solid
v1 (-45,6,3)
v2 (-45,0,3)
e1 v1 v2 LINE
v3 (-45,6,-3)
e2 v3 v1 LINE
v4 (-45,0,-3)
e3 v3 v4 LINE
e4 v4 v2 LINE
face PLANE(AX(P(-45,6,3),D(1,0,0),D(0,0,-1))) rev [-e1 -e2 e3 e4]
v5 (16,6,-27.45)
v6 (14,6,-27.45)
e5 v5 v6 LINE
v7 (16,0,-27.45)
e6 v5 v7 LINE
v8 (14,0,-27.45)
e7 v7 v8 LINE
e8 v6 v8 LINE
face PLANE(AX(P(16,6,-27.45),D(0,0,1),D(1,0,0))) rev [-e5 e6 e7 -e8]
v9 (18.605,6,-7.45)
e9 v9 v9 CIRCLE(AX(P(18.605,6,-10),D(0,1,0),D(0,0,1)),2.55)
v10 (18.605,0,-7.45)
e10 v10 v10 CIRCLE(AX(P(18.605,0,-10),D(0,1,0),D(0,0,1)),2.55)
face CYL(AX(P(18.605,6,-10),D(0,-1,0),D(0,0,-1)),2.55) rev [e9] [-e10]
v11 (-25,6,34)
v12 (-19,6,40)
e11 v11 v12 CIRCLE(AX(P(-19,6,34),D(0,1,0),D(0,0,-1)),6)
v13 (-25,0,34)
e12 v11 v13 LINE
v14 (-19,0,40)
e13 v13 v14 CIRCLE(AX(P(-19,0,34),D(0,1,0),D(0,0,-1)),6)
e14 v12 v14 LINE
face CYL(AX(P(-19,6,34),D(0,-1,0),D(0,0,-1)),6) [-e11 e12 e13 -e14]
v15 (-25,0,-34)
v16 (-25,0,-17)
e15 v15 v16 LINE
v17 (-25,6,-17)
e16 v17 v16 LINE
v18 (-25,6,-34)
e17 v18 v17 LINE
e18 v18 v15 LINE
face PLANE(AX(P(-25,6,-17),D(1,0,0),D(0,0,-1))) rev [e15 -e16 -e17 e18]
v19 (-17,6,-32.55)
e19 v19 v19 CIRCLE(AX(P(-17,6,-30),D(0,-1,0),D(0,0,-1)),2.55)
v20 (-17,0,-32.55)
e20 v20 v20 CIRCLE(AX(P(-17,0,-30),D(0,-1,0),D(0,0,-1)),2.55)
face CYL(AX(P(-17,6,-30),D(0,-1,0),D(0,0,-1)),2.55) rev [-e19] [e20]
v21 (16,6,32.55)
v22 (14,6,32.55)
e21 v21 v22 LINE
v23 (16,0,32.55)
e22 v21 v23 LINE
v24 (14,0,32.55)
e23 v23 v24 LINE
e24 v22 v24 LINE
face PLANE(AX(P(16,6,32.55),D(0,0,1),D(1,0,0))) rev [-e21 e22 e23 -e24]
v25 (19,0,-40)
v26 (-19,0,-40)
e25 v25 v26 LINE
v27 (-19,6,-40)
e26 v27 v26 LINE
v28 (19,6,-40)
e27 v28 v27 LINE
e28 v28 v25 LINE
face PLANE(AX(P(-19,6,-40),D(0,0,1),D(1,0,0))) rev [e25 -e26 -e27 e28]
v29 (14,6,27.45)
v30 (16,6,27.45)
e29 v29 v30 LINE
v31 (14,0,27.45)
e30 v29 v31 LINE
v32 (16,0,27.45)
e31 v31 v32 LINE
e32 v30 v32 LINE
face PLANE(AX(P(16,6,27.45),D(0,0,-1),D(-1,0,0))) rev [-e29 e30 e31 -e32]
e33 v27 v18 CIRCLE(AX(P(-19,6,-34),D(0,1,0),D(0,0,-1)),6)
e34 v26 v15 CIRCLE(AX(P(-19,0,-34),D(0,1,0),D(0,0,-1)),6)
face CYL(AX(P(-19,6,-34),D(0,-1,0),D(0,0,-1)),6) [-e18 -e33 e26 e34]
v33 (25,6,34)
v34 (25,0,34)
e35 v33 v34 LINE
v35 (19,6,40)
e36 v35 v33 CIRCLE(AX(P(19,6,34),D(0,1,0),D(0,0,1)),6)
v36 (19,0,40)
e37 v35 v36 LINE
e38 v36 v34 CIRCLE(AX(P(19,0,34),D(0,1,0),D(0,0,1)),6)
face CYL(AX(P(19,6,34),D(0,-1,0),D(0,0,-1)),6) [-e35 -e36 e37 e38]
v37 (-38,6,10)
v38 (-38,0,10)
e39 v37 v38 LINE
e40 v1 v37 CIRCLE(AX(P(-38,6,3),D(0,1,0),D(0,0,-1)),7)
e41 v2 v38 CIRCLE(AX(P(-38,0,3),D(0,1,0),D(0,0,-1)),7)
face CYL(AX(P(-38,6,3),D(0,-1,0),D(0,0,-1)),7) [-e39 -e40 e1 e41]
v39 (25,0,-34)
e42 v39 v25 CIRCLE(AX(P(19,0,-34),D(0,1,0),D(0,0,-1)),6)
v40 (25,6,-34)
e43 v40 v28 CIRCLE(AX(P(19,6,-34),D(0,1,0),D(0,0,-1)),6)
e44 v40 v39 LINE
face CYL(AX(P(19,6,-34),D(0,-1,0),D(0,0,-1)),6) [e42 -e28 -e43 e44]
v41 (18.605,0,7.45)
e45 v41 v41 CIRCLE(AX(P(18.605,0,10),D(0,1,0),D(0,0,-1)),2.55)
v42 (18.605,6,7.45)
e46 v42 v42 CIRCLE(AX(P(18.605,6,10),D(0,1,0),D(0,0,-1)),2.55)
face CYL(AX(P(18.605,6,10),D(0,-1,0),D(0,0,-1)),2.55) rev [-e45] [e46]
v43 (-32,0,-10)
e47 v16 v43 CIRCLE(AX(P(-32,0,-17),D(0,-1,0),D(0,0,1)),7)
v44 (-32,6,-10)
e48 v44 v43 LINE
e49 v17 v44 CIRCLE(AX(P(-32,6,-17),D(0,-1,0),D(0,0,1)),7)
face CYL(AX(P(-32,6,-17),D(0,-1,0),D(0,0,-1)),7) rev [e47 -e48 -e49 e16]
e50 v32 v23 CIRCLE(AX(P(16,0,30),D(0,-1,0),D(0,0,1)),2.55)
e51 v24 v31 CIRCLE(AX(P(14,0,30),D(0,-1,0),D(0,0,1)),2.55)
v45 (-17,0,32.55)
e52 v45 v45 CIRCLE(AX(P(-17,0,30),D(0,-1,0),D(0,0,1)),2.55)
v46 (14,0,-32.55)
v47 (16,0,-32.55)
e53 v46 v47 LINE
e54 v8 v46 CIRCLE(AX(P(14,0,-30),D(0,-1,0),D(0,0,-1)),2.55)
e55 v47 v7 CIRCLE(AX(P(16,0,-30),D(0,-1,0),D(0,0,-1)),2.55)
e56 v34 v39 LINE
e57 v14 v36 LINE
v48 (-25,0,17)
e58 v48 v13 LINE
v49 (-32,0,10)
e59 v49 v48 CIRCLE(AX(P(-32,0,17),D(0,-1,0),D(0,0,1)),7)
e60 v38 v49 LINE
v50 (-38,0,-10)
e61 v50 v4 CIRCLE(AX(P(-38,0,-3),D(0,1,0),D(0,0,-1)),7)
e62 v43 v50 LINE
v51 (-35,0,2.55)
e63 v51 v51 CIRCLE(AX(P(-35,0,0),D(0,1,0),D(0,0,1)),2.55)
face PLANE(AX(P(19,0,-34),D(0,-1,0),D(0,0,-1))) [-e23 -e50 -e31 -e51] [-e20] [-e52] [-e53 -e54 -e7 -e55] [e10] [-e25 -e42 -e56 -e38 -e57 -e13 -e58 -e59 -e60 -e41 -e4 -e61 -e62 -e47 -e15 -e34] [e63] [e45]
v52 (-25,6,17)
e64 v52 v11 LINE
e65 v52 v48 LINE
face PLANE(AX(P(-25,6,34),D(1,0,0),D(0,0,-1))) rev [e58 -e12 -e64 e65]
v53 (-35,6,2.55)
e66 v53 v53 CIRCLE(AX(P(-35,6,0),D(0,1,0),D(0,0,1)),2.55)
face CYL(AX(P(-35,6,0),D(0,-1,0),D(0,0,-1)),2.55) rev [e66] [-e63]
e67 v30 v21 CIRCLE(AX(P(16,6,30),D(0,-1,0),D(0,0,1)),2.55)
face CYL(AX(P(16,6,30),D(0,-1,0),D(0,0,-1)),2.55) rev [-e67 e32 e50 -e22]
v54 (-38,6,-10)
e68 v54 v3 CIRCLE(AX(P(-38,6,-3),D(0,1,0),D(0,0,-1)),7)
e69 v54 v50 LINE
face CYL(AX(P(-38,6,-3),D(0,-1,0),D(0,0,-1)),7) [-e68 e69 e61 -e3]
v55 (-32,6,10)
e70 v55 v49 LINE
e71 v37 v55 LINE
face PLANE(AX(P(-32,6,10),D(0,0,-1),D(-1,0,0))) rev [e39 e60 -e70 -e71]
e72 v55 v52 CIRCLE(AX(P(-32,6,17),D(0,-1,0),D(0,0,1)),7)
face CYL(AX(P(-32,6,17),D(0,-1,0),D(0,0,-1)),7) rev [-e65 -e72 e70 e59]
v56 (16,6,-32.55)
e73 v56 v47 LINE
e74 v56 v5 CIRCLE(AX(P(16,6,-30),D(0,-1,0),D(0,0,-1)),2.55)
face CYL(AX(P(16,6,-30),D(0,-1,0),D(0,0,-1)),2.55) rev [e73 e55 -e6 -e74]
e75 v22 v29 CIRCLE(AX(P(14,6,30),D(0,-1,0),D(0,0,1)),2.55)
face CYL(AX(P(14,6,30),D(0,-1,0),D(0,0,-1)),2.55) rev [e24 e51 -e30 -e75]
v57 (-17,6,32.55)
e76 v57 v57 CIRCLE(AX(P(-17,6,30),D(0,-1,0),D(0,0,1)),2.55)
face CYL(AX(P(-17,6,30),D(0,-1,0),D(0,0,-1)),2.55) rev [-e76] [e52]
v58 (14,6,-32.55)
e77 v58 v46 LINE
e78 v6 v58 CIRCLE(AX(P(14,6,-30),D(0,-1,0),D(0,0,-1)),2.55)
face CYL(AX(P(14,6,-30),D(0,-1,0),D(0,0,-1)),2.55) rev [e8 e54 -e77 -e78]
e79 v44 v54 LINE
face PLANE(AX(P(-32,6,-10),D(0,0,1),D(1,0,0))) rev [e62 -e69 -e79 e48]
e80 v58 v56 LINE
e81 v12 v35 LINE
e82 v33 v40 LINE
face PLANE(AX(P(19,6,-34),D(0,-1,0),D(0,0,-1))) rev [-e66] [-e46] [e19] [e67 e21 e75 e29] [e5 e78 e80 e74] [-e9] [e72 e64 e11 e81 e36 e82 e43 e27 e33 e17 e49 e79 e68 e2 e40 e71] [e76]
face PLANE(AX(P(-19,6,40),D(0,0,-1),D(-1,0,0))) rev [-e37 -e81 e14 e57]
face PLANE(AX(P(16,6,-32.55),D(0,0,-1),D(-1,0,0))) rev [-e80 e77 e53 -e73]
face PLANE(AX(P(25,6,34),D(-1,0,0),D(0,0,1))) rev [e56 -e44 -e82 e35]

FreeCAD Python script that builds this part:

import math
import FreeCAD as App
import Part
import Sketcher
Q = App.Units.Quantity

doc = App.newDocument("Part")
body = doc.addObject("PartDesign::Body", "Body")

# Sketch on XZ plane
sketch1 = body.newObject("Sketcher::SketchObject", "Sketch")
sketch1.AttachmentSupport = (doc.getObject("XZ_Plane"), [""])
sketch1.MapMode = "FlatFace"
sketch1.addGeometry(Part.LineSegment(App.Vector(-38, 10, 0), App.Vector(-32, 10, 0)), False)
sketch1.addGeometry(Part.ArcOfCircle(Part.Circle(App.Vector(-32, 17, 0), App.Vector(0, 0, 1), 7), math.radians(-90), math.radians(0)), False)
sketch1.addGeometry(Part.LineSegment(App.Vector(-25, 17, 0), App.Vector(-25, 34, 0)), False)
sketch1.addGeometry(Part.ArcOfCircle(Part.Circle(App.Vector(-19, 34, 0), App.Vector(0, 0, 1), 6), math.radians(90), math.radians(180)), False)
sketch1.addGeometry(Part.LineSegment(App.Vector(-19, 40, 0), App.Vector(19, 40, 0)), False)
sketch1.addGeometry(Part.ArcOfCircle(Part.Circle(App.Vector(19, 34, 0), App.Vector(0, 0, 1), 6), math.radians(0), math.radians(90)), False)
sketch1.addGeometry(Part.LineSegment(App.Vector(25, 34, 0), App.Vector(25, -34, 0)), False)
sketch1.addGeometry(Part.ArcOfCircle(Part.Circle(App.Vector(19, -34, 0), App.Vector(0, 0, 1), 6), math.radians(-90), math.radians(0)), False)
sketch1.addGeometry(Part.LineSegment(App.Vector(19, -40, 0), App.Vector(-19, -40, 0)), False)
sketch1.addGeometry(Part.ArcOfCircle(Part.Circle(App.Vector(-19, -34, 0), App.Vector(0, 0, 1), 6), math.radians(180), math.radians(270)), False)
sketch1.addGeometry(Part.LineSegment(App.Vector(-25, -34, 0), App.Vector(-25, -17, 0)), False)
sketch1.addGeometry(Part.ArcOfCircle(Part.Circle(App.Vector(-32, -17, 0), App.Vector(0, 0, 1), 7), math.radians(0), math.radians(90)), False)
sketch1.addGeometry(Part.LineSegment(App.Vector(-32, -10, 0), App.Vector(-38, -10, 0)), False)
sketch1.addGeometry(Part.ArcOfCircle(Part.Circle(App.Vector(-38, -3, 0), App.Vector(0, 0, 1), 7), math.radians(-180), math.radians(-90)), False)
sketch1.addGeometry(Part.LineSegment(App.Vector(-45, -3, 0), App.Vector(-45, 3, 0)), False)
sketch1.addGeometry(Part.ArcOfCircle(Part.Circle(App.Vector(-38, 3, 0), App.Vector(0, 0, 1), 7), math.radians(90), math.radians(180)), False)
sketch1.addGeometry(Part.Circle(App.Vector(18.605, 10, 0), App.Vector(0, 0, 1), 2.55), False)
sketch1.addGeometry(Part.Circle(App.Vector(18.605, -10, 0), App.Vector(0, 0, 1), 2.55), False)
sketch1.addGeometry(Part.Circle(App.Vector(-35, 0, 0), App.Vector(0, 0, 1), 2.55), False)
sketch1.addConstraint(Sketcher.Constraint("Tangent", 0, 2, 1, 1))
sketch1.addConstraint(Sketcher.Constraint("Tangent", 1, 2, 2, 1))
sketch1.addConstraint(Sketcher.Constraint("Tangent", 2, 2, 3, 2))
sketch1.addConstraint(Sketcher.Constraint("Tangent", 3, 1, 4, 1))
sketch1.addConstraint(Sketcher.Constraint("Tangent", 4, 2, 5, 2))
sketch1.addConstraint(Sketcher.Constraint("Tangent", 5, 1, 6, 1))
sketch1.addConstraint(Sketcher.Constraint("Tangent", 6, 2, 7, 2))
sketch1.addConstraint(Sketcher.Constraint("Tangent", 7, 1, 8, 1))
sketch1.addConstraint(Sketcher.Constraint("Tangent", 8, 2, 9, 2))
sketch1.addConstraint(Sketcher.Constraint("Tangent", 9, 1, 10, 1))
sketch1.addConstraint(Sketcher.Constraint("Tangent", 10, 2, 11, 1))
sketch1.addConstraint(Sketcher.Constraint("Tangent", 11, 2, 12, 1))
sketch1.addConstraint(Sketcher.Constraint("Tangent", 12, 2, 13, 2))
sketch1.addConstraint(Sketcher.Constraint("Tangent", 13, 1, 14, 1))
sketch1.addConstraint(Sketcher.Constraint("Tangent", 14, 2, 15, 2))
sketch1.addConstraint(Sketcher.Constraint("Tangent", 15, 1, 0, 1))
sketch1.addConstraint(Sketcher.Constraint("Horizontal", 0))
sketch1.addConstraint(Sketcher.Constraint("Vertical", 2))
sketch1.addConstraint(Sketcher.Constraint("Horizontal", 4))
sketch1.addConstraint(Sketcher.Constraint("Vertical", 6))
sketch1.addConstraint(Sketcher.Constraint("Horizontal", 8))
sketch1.addConstraint(Sketcher.Constraint("Vertical", 10))
sketch1.addConstraint(Sketcher.Constraint("Horizontal", 12))
sketch1.addConstraint(Sketcher.Constraint("Vertical", 14))
sketch1.addConstraint(Sketcher.Constraint("Equal", 3, 5))
sketch1.addConstraint(Sketcher.Constraint("Equal", 5, 7))
sketch1.addConstraint(Sketcher.Constraint("Equal", 7, 9))
sketch1.addConstraint(Sketcher.Constraint("Equal", 1, 11))
sketch1.addConstraint(Sketcher.Constraint("Equal", 11, 13))
sketch1.addConstraint(Sketcher.Constraint("Equal", 13, 15))
sketch1.addConstraint(Sketcher.Constraint("Equal", 16, 17))
sketch1.addConstraint(Sketcher.Constraint("Equal", 17, 18))
sketch1.addConstraint(Sketcher.Constraint("Symmetric", 3, 3, 7, 3, -1, 1))
sketch1.addConstraint(Sketcher.Constraint("Symmetric", 1, 3, 11, 3, -1))
sketch1.addConstraint(Sketcher.Constraint("Symmetric", 16, 3, 17, 3, -1))
sketch1.addConstraint(Sketcher.Constraint("PointOnObject", 18, 3, -1))
sketch1.addConstraint(Sketcher.Constraint("Horizontal", 16, 3, 0, 2))
sketch1.addConstraint(Sketcher.Constraint("Equal", 12, 14))
sketch1.addConstraint(Sketcher.Constraint("Radius", 1, Q("7 mm")))
sketch1.addConstraint(Sketcher.Constraint("Radius", 3, Q("6 mm")))
sketch1.addConstraint(Sketcher.Constraint("Diameter", 16, Q("5.1 mm")))
sketch1.addConstraint(Sketcher.Constraint("DistanceX", 0, 1, 0, 2, Q("6 mm")))
sketch1.addConstraint(Sketcher.Constraint("DistanceX", 4, 1, 4, 2, Q("38 mm")))
sketch1.addConstraint(Sketcher.Constraint("DistanceY", 2, 1, 2, 2, Q("17 mm")))
sketch1.addConstraint(Sketcher.Constraint("DistanceX", 18, 3, -1, 1, Q("35 mm")))
sketch1.addConstraint(Sketcher.Constraint("DistanceX", -1, 1, 16, 3, Q("18.605 mm")))
pad1 = body.newObject("PartDesign::Pad", "Pad")
pad1.Profile = sketch1
pad1.Length = 6
pad1.Reversed = True

# Sketch on XZ plane
sketch2 = body.newObject("Sketcher::SketchObject", "Sketch001")
sketch2.AttachmentSupport = (doc.getObject("XZ_Plane"), [""])
sketch2.MapMode = "FlatFace"
sketch2.addGeometry(Part.Circle(App.Vector(-17, -30, 0), App.Vector(0, 0, 1), 2.55), False)
sketch2.addGeometry(Part.Circle(App.Vector(-17, 30, 0), App.Vector(0, 0, 1), 2.55), False)
sketch2.addGeometry(Part.LineSegment(App.Vector(14, -32.55, 0), App.Vector(16, -32.55, 0)), False)
sketch2.addGeometry(Part.ArcOfCircle(Part.Circle(App.Vector(16, -30, 0), App.Vector(0, 0, 1), 2.55), math.radians(-90), math.radians(90)), False)
sketch2.addGeometry(Part.LineSegment(App.Vector(16, -27.45, 0), App.Vector(14, -27.45, 0)), False)
sketch2.addGeometry(Part.ArcOfCircle(Part.Circle(App.Vector(14, -30, 0), App.Vector(0, 0, 1), 2.55), math.radians(90), math.radians(270)), False)
sketch2.addGeometry(Part.LineSegment(App.Vector(16, 32.55, 0), App.Vector(14, 32.55, 0)), False)
sketch2.addGeometry(Part.ArcOfCircle(Part.Circle(App.Vector(14, 30, 0), App.Vector(0, 0, 1), 2.55), math.radians(90), math.radians(270)), False)
sketch2.addGeometry(Part.LineSegment(App.Vector(14, 27.45, 0), App.Vector(16, 27.45, 0)), False)
sketch2.addGeometry(Part.ArcOfCircle(Part.Circle(App.Vector(16, 30, 0), App.Vector(0, 0, 1), 2.55), math.radians(-90), math.radians(90)), False)
sketch2.addConstraint(Sketcher.Constraint("Tangent", 2, 2, 3, 1))
sketch2.addConstraint(Sketcher.Constraint("Tangent", 3, 2, 4, 1))
sketch2.addConstraint(Sketcher.Constraint("Tangent", 4, 2, 5, 1))
sketch2.addConstraint(Sketcher.Constraint("Tangent", 5, 2, 2, 1))
sketch2.addConstraint(Sketcher.Constraint("Tangent", 6, 2, 7, 1))
sketch2.addConstraint(Sketcher.Constraint("Tangent", 7, 2, 8, 1))
sketch2.addConstraint(Sketcher.Constraint("Tangent", 8, 2, 9, 1))
sketch2.addConstraint(Sketcher.Constraint("Tangent", 9, 2, 6, 1))
sketch2.addConstraint(Sketcher.Constraint("Horizontal", 2))
sketch2.addConstraint(Sketcher.Constraint("Horizontal", 4))
sketch2.addConstraint(Sketcher.Constraint("Horizontal", 6))
sketch2.addConstraint(Sketcher.Constraint("Horizontal", 8))
sketch2.addConstraint(Sketcher.Constraint("Equal", 0, 1))
sketch2.addConstraint(Sketcher.Constraint("Equal", 1, 3))
sketch2.addConstraint(Sketcher.Constraint("Equal", 5, 7))
sketch2.addConstraint(Sketcher.Constraint("Symmetric", 0, 3, 1, 3, -1))
sketch2.addConstraint(Sketcher.Constraint("Symmetric", 5, 3, 7, 3, -1))
sketch2.addConstraint(Sketcher.Constraint("Horizontal", 0, 3, 3, 3))
sketch2.addConstraint(Sketcher.Constraint("Vertical", 3, 3, 9, 3))
sketch2.addConstraint(Sketcher.Constraint("Diameter", 0, Q("5.1 mm")))
sketch2.addConstraint(Sketcher.Constraint("DistanceX", 2, 1, 2, 2, Q("2 mm")))
sketch2.addConstraint(Sketcher.Constraint("DistanceX", 0, 3, -1, 1, Q("17 mm")))
sketch2.addConstraint(Sketcher.Constraint("DistanceY", 0, 3, -1, 1, Q("30 mm")))
sketch2.addConstraint(Sketcher.Constraint("DistanceX", -1, 1, 3, 3, Q("16 mm")))
pocket1 = body.newObject("PartDesign::Pocket", "Pocket")
pocket1.Profile = sketch2
pocket1.Type = "ThroughAll"

doc.recompute()
